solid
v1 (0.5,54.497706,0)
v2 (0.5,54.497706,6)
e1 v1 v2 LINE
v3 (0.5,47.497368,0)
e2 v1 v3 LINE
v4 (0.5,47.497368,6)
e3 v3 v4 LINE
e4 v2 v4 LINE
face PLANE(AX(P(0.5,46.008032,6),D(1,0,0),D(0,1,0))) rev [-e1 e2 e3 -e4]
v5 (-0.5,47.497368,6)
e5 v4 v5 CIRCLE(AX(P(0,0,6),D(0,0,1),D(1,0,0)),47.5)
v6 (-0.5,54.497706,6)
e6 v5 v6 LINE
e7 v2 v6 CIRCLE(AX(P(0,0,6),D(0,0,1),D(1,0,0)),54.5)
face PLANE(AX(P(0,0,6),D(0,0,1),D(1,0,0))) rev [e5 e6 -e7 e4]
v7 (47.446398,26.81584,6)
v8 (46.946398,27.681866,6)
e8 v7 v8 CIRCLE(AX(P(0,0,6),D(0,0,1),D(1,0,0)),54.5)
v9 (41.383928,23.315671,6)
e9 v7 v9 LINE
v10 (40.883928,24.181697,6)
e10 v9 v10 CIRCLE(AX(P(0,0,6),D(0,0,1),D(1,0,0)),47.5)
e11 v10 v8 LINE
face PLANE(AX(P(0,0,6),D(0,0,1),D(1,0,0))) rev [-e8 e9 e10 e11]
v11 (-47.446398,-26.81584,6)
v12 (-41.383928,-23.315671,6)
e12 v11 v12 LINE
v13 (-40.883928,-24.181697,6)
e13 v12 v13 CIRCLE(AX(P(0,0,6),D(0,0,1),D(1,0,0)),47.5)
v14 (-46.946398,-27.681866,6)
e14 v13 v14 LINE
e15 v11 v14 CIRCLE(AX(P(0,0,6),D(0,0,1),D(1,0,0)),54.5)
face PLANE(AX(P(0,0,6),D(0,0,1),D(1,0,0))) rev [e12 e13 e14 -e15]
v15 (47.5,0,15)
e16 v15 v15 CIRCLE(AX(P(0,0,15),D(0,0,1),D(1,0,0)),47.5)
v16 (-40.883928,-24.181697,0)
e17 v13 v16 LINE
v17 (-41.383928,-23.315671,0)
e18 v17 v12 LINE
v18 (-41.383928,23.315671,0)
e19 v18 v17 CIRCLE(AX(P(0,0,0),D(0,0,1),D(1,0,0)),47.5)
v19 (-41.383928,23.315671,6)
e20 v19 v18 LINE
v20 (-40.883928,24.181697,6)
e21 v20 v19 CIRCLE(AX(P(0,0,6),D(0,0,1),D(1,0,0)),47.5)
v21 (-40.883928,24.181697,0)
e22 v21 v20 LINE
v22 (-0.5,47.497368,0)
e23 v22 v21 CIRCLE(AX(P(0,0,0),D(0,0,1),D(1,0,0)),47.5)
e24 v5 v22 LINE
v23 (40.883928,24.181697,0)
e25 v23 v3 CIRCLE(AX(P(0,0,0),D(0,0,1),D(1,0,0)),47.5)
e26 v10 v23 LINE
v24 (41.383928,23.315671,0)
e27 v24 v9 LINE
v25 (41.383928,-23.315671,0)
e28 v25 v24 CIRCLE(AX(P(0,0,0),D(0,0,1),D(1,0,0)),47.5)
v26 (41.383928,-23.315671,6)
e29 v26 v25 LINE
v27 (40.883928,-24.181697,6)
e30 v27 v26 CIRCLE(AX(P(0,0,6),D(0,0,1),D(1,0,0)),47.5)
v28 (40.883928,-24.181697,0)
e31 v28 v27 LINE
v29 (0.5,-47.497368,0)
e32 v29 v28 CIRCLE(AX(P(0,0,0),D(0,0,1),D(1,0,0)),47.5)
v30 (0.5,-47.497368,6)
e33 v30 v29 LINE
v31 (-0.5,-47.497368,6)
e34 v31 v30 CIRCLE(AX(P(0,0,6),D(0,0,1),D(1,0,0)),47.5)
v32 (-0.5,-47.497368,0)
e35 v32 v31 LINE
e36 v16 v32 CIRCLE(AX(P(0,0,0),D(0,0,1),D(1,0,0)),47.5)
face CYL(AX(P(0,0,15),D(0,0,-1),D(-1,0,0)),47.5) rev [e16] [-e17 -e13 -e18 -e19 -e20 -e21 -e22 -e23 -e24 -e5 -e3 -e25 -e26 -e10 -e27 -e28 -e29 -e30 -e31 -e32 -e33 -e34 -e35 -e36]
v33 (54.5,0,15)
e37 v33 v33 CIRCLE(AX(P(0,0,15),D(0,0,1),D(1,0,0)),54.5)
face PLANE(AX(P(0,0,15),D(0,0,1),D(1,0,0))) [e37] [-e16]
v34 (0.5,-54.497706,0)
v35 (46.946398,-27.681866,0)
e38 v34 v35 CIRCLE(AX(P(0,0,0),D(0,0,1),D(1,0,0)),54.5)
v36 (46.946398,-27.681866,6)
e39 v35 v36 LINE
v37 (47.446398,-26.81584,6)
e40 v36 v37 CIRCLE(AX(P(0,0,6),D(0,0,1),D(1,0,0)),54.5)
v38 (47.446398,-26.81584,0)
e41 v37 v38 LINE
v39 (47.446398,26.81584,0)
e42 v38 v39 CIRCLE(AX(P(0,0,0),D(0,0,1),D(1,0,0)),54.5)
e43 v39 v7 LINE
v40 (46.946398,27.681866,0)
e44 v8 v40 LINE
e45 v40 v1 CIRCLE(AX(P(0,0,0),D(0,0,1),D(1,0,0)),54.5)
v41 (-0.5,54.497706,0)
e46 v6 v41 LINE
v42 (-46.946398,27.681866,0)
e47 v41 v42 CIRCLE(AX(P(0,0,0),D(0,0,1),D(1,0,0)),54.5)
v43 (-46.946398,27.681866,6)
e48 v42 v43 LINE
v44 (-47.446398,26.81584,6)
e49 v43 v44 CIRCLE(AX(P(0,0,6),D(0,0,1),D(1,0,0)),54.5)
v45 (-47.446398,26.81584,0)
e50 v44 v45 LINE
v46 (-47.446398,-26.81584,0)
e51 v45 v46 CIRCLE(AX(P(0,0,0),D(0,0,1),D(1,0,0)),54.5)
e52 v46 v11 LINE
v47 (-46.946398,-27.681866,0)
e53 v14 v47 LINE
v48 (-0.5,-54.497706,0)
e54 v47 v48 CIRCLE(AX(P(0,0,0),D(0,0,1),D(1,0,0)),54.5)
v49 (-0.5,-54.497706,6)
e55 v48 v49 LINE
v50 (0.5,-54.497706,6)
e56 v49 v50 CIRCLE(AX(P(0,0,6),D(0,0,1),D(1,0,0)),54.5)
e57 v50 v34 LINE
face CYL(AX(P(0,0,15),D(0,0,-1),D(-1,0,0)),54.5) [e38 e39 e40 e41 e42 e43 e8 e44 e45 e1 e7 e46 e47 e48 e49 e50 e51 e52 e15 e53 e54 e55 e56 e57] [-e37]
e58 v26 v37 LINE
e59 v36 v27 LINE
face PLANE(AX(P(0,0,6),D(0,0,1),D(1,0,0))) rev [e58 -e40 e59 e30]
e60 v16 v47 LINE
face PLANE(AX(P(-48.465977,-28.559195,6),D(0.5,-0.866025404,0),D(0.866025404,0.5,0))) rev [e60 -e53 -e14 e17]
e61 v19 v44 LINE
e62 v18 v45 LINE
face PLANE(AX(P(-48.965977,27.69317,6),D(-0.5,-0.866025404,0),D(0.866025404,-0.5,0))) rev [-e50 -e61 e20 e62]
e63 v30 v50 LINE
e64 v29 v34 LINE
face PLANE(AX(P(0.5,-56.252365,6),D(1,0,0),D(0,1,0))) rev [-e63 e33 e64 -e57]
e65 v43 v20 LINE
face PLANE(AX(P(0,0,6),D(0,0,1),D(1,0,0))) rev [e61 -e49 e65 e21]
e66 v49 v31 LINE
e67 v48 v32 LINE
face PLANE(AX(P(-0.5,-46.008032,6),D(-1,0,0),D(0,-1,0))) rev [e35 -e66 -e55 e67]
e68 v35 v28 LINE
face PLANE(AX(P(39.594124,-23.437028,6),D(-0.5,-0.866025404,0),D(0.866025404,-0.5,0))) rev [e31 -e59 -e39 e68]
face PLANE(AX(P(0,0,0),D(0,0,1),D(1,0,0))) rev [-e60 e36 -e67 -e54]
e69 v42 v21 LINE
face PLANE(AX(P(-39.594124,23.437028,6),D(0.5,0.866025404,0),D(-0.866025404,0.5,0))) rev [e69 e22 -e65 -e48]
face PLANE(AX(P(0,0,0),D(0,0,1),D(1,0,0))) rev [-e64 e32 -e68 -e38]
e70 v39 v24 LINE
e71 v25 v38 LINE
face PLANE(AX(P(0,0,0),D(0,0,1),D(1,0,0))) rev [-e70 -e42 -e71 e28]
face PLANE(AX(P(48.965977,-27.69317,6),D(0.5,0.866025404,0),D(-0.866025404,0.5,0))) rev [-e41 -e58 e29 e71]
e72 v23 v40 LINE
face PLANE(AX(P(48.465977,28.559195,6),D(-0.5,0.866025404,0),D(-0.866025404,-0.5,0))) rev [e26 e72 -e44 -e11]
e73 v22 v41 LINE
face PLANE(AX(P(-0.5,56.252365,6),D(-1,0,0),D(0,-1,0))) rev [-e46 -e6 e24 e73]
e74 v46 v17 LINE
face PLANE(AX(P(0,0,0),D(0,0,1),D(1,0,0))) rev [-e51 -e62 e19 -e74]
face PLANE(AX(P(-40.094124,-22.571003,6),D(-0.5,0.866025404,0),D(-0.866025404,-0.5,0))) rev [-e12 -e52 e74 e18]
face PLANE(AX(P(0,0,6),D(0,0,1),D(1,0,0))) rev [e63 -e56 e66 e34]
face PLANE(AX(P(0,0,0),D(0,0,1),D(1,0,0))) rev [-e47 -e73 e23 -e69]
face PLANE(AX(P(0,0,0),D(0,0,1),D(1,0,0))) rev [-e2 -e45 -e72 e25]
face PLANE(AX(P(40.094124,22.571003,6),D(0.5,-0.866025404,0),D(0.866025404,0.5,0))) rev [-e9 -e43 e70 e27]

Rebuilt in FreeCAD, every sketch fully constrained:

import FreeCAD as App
import Part
import Sketcher
from FreeCAD import Vector
Q = App.Units.Quantity

doc = App.newDocument("Part")
params = doc.addObject("Spreadsheet::Sheet", "Params")
for row, (alias, value) in enumerate([
    ("sketch1_diameter", "109 mm"),
    ("sketch1_diameter2", "95 mm"),
    ("pad1_length", "15 mm"),
    ("sketch2_width", "1 mm"),
    ("sketch2_length", "1 mm"),
    ("pocket1_length", "6 mm"),
], start=1):
    params.set(f"A{row}", alias)
    params.set(f"B{row}", "=" + value)
    params.setAlias(f"B{row}", alias)

body = doc.addObject("PartDesign::Body", "Body")

sketch1 = body.newObject("Sketcher::SketchObject", "Sketch")
sketch1.AttachmentSupport = (doc.getObject("XY_Plane"), [""])
sketch1.MapMode = "FlatFace"
sketch1.addGeometry([
    Part.Circle(Vector(0, 0, 0), Vector(0, 0, 1), 54.5),
    Part.Circle(Vector(0, 0, 0), Vector(0, 0, 1), 47.5),
], False)
sketch1.addConstraint([
    Sketcher.Constraint("Coincident", 0, 3, -1, 1),
    Sketcher.Constraint("Coincident", 1, 3, -1, 1),
    Sketcher.Constraint("Diameter", 0, Q("109 mm")),
    Sketcher.Constraint("Diameter", 1, Q("95 mm")),
])
sketch1.setExpression("Constraints[2]", "Params.sketch1_diameter")
sketch1.setExpression("Constraints[3]", "Params.sketch1_diameter2")
pad1 = body.newObject("PartDesign::Pad", "Pad")
pad1.Profile = sketch1
pad1.setExpression("Length", "Params.pad1_length")

sketch2 = body.newObject("Sketcher::SketchObject", "Sketch001")
sketch2.AttachmentSupport = (doc.getObject("XY_Plane"), [""])
sketch2.MapMode = "FlatFace"
sketch2.addGeometry([
    Part.LineSegment(Vector(-40.094124, 22.571003, 0), Vector(-48.965977, 27.69317, 0)),
    Part.LineSegment(Vector(-48.965977, 27.69317, 0), Vector(-48.465977, 28.559195, 0)),
    Part.LineSegment(Vector(-48.465977, 28.559195, 0), Vector(-39.594124, 23.437028, 0)),
    Part.LineSegment(Vector(-39.594124, 23.437028, 0), Vector(-40.094124, 22.571003, 0)),
    Part.LineSegment(Vector(0.5, 56.252365, 0), Vector(0.5, 46.008032, 0)),
    Part.LineSegment(Vector(0.5, 46.008032, 0), Vector(-0.5, 46.008032, 0)),
    Part.LineSegment(Vector(-0.5, 46.008032, 0), Vector(-0.5, 56.252365, 0)),
    Part.LineSegment(Vector(-0.5, 56.252365, 0), Vector(0.5, 56.252365, 0)),
    Part.LineSegment(Vector(-39.594124, -23.437028, 0), Vector(-48.465977, -28.559195, 0)),
    Part.LineSegment(Vector(-48.465977, -28.559195, 0), Vector(-48.965977, -27.69317, 0)),
    Part.LineSegment(Vector(-48.965977, -27.69317, 0), Vector(-40.094124, -22.571003, 0)),
    Part.LineSegment(Vector(-40.094124, -22.571003, 0), Vector(-39.594124, -23.437028, 0)),
    Part.LineSegment(Vector(0.5, -46.008032, 0), Vector(0.5, -56.252365, 0)),
    Part.LineSegment(Vector(0.5, -56.252365, 0), Vector(-0.5, -56.252365, 0)),
    Part.LineSegment(Vector(-0.5, -56.252365, 0), Vector(-0.5, -46.008032, 0)),
    Part.LineSegment(Vector(-0.5, -46.008032, 0), Vector(0.5, -46.008032, 0)),
    Part.LineSegment(Vector(40.094124, -22.571003, 0), Vector(48.965977, -27.69317, 0)),
    Part.LineSegment(Vector(48.965977, -27.69317, 0), Vector(48.465977, -28.559195, 0)),
    Part.LineSegment(Vector(48.465977, -28.559195, 0), Vector(39.594124, -23.437028, 0)),
    Part.LineSegment(Vector(39.594124, -23.437028, 0), Vector(40.094124, -22.571003, 0)),
    Part.LineSegment(Vector(39.594124, 23.437028, 0), Vector(48.465977, 28.559195, 0)),
    Part.LineSegment(Vector(48.465977, 28.559195, 0), Vector(48.965977, 27.69317, 0)),
    Part.LineSegment(Vector(48.965977, 27.69317, 0), Vector(40.094124, 22.571003, 0)),
    Part.LineSegment(Vector(40.094124, 22.571003, 0), Vector(39.594124, 23.437028, 0)),
], False)
sketch2.addConstraint([
    Sketcher.Constraint("Coincident", 0, 2, 1, 1),
    Sketcher.Constraint("Coincident", 1, 2, 2, 1),
    Sketcher.Constraint("Coincident", 2, 2, 3, 1),
    Sketcher.Constraint("Coincident", 3, 2, 0, 1),
    Sketcher.Constraint("Coincident", 4, 2, 5, 1),
    Sketcher.Constraint("Coincident", 5, 2, 6, 1),
    Sketcher.Constraint("Coincident", 6, 2, 7, 1),
    Sketcher.Constraint("Coincident", 7, 2, 4, 1),
    Sketcher.Constraint("Coincident", 8, 2, 9, 1),
    Sketcher.Constraint("Coincident", 9, 2, 10, 1),
    Sketcher.Constraint("Coincident", 10, 2, 11, 1),
    Sketcher.Constraint("Coincident", 11, 2, 8, 1),
    Sketcher.Constraint("Coincident", 12, 2, 13, 1),
    Sketcher.Constraint("Coincident", 13, 2, 14, 1),
    Sketcher.Constraint("Coincident", 14, 2, 15, 1),
    Sketcher.Constraint("Coincident", 15, 2, 12, 1),
    Sketcher.Constraint("Coincident", 16, 2, 17, 1),
    Sketcher.Constraint("Coincident", 17, 2, 18, 1),
    Sketcher.Constraint("Coincident", 18, 2, 19, 1),
    Sketcher.Constraint("Coincident", 19, 2, 16, 1),
    Sketcher.Constraint("Coincident", 20, 2, 21, 1),
    Sketcher.Constraint("Coincident", 21, 2, 22, 1),
    Sketcher.Constraint("Coincident", 22, 2, 23, 1),
    Sketcher.Constraint("Coincident", 23, 2, 20, 1),
    Sketcher.Constraint("Vertical", 4),
    Sketcher.Constraint("Horizontal", 5),
    Sketcher.Constraint("Vertical", 6),
    Sketcher.Constraint("Horizontal", 7),
    Sketcher.Constraint("Vertical", 12),
    Sketcher.Constraint("Horizontal", 13),
    Sketcher.Constraint("Vertical", 14),
    Sketcher.Constraint("Horizontal", 15),
    Sketcher.Constraint("Symmetric", 6, 2, 12, 2, -1, 1),
    Sketcher.Constraint("Symmetric", 4, 2, 14, 2, -1, 1),
    Sketcher.Constraint("Symmetric", 0, 2, 16, 2, -1, 1),
    Sketcher.Constraint("Symmetric", 1, 2, 17, 2, -1, 1),
    Sketcher.Constraint("Symmetric", 2, 2, 18, 2, -1, 1),
    Sketcher.Constraint("Symmetric", 3, 2, 19, 2, -1, 1),
    Sketcher.Constraint("Symmetric", 8, 2, 20, 2, -1, 1),
    Sketcher.Constraint("Symmetric", 9, 2, 21, 2, -1, 1),
    Sketcher.Constraint("Symmetric", 10, 2, 22, 2, -1, 1),
    Sketcher.Constraint("Symmetric", 11, 2, 23, 2, -1, 1),
    Sketcher.Constraint("Symmetric", 9, 2, 16, 2, -2),
    Sketcher.Constraint("Symmetric", 8, 2, 17, 2, -2),
    Sketcher.Constraint("Symmetric", 11, 2, 18, 2, -2),
    Sketcher.Constraint("Symmetric", 10, 2, 19, 2, -2),
    Sketcher.Constraint("Perpendicular", 0, 1),
    Sketcher.Constraint("Perpendicular", 1, 2),
    Sketcher.Constraint("Perpendicular", 2, 3),
    Sketcher.Constraint("Vertical", 7, 2, 12, 2),
    Sketcher.Constraint("DistanceX", 5, 2, 5, 1, Q("1 mm")),
    Sketcher.Constraint("Angle", 0, Q("150 deg")),
    Sketcher.Constraint("Distance", 1, Q("1 mm")),
    Sketcher.Constraint("DistanceY", 8, 2, 3, 2, Q("51.130198 mm")),
    Sketcher.Constraint("DistanceY", 16, 2, 4, 2, Q("73.701201 mm")),
    Sketcher.Constraint("DistanceY", 4, 2, 4, 1, Q("10.244333 mm")),
    Sketcher.Constraint("DistanceY", -1, 1, 0, 2, Q("27.69317 mm")),
    Sketcher.Constraint("DistanceX", 0, 2, -1, 1, Q("48.965977 mm")),
])
sketch2.setExpression("Constraints[50]", "Params.sketch2_width")
sketch2.setExpression("Constraints[52]", "Params.sketch2_length")
pocket1 = body.newObject("PartDesign::Pocket", "Pocket")
pocket1.Profile = sketch2
pocket1.setExpression("Length", "Params.pocket1_length")
pocket1.Reversed = True

doc.recompute()
